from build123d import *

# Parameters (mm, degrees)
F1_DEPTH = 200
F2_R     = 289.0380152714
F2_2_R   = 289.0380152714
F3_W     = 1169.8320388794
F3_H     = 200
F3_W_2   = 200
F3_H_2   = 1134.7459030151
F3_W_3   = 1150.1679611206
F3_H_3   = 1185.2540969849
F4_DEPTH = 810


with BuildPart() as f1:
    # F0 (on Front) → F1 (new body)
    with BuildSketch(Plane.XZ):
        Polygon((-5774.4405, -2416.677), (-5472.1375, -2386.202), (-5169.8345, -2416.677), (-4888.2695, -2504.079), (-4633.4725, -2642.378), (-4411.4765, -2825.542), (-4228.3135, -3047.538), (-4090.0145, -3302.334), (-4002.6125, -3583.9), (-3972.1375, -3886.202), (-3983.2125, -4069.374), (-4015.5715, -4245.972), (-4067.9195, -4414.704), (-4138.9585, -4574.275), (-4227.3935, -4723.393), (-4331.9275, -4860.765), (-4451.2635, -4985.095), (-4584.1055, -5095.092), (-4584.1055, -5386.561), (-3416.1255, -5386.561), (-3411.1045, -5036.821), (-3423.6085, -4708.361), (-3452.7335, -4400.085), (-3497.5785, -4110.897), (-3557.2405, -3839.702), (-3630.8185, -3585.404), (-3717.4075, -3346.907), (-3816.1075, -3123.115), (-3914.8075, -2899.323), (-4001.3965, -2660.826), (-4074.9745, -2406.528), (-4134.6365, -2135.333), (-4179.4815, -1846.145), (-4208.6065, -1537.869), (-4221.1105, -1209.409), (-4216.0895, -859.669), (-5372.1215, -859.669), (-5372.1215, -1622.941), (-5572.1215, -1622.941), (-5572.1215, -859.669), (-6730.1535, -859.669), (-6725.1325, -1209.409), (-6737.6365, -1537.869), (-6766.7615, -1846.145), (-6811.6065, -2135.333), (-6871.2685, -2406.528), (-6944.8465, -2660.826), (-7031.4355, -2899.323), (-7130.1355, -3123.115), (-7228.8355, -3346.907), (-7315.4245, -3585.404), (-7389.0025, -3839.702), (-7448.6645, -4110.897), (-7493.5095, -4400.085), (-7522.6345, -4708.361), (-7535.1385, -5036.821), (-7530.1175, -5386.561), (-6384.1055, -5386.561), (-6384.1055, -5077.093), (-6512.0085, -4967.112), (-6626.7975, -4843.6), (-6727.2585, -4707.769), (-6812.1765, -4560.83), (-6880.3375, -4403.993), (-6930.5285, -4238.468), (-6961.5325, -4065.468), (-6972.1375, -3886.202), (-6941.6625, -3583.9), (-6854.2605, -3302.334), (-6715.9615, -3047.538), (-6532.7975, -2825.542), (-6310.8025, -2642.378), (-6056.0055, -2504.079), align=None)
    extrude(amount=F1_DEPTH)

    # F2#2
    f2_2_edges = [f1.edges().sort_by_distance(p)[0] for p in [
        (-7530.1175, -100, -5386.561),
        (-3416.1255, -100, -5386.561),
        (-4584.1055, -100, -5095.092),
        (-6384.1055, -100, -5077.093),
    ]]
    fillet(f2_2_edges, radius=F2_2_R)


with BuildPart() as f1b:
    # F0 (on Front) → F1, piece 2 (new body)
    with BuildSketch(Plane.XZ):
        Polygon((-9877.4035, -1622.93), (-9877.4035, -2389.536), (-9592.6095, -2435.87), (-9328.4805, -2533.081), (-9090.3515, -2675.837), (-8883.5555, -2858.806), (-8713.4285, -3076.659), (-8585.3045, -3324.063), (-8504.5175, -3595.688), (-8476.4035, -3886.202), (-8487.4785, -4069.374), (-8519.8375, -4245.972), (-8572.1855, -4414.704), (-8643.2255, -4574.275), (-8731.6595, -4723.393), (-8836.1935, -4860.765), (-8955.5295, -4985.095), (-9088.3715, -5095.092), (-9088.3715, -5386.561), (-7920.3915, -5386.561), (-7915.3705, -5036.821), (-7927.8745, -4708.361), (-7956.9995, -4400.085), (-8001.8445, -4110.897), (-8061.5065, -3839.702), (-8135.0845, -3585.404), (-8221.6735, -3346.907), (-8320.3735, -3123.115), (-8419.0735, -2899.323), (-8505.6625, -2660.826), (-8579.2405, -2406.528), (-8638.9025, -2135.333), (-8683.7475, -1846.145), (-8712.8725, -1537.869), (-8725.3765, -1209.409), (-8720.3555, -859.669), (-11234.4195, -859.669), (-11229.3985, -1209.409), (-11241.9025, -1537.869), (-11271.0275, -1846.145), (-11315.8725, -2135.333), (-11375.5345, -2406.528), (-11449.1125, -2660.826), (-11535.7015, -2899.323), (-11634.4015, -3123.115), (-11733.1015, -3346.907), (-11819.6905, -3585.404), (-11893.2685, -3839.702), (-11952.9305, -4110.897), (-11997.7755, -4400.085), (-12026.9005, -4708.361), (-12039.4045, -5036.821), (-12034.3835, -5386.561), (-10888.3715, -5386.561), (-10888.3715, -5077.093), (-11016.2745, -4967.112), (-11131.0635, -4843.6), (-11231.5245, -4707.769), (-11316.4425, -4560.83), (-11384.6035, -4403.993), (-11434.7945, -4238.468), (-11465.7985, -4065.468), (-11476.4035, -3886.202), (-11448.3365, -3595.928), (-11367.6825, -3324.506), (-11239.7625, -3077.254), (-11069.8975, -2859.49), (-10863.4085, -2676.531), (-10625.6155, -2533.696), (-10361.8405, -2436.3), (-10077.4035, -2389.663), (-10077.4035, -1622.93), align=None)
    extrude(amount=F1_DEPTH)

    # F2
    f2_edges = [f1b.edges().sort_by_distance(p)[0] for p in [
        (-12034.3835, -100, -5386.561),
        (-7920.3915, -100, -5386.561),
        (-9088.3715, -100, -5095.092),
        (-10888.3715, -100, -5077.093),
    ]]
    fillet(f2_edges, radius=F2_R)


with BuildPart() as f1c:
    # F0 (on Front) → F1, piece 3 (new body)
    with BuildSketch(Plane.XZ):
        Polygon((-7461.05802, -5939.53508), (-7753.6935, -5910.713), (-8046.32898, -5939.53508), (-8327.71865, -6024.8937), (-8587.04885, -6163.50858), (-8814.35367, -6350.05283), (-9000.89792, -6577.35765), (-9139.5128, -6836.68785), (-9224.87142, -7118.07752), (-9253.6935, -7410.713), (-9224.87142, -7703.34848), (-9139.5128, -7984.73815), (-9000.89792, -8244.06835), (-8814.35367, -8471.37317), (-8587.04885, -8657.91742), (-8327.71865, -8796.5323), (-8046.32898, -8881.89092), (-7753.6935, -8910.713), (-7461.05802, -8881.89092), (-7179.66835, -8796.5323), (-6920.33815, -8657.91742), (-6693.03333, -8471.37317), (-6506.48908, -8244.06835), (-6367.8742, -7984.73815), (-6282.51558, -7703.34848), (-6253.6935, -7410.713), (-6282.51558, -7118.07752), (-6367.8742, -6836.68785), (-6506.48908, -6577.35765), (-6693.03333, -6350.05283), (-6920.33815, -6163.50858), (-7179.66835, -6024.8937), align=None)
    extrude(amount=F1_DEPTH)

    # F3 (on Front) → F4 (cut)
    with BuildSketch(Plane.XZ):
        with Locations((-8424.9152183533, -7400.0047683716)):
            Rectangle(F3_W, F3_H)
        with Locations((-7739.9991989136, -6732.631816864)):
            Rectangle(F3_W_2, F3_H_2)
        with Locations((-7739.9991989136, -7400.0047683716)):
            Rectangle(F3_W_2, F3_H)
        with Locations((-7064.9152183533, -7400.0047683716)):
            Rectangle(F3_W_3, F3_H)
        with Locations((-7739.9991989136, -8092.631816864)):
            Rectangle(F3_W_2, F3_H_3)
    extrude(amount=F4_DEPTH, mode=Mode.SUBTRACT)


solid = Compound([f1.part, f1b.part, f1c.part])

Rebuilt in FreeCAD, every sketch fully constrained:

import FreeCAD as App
import Part
import Sketcher
from FreeCAD import Vector
Q = App.Units.Quantity


def edges_at(feature, points):
    """Names of the edges that pass closest to the given points."""
    edges = feature.Shape.Edges
    near = lambda p: min(range(len(edges)), key=lambda i: edges[i].distToShape(Part.Vertex(*p))[0])
    return sorted({f"Edge{near(p) + 1}" for p in points})


def add_polygon(sketch, points):
    """Adds a closed chain of lines whose ends are joined by coincident constraints."""
    first, n = sketch.GeometryCount, len(points)
    for a, b in zip(points, points[1:] + points[:1]):
        sketch.addGeometry(Part.LineSegment(App.Vector(*a, 0), App.Vector(*b, 0)), False)
    for i in range(n):
        sketch.addConstraint(Sketcher.Constraint("Coincident", first + i, 2, first + (i + 1) % n, 1))

doc = App.newDocument("Part")
body = doc.addObject("PartDesign::Body", "Body")

# Sketch on XZ plane
sketch1 = body.newObject("Sketcher::SketchObject", "Sketch")
sketch1.AttachmentSupport = (doc.getObject("XZ_Plane"), [""])
sketch1.MapMode = "FlatFace"
add_polygon(sketch1, [(-5774.4405, -2416.677), (-5472.1375, -2386.202), (-5169.8345, -2416.677), (-4888.2695, -2504.079), (-4633.4725, -2642.378), (-4411.4765, -2825.542), (-4228.3135, -3047.538), (-4090.0145, -3302.334), (-4002.6125, -3583.9), (-3972.1375, -3886.202), (-3983.2125, -4069.374), (-4015.5715, -4245.972), (-4067.9195, -4414.704), (-4138.9585, -4574.275), (-4227.3935, -4723.393), (-4331.9275, -4860.765), (-4451.2635, -4985.095), (-4584.1055, -5095.092), (-4584.1055, -5386.561), (-3416.1255, -5386.561), (-3411.1045, -5036.821), (-3423.6085, -4708.361), (-3452.7335, -4400.085), (-3497.5785, -4110.897), (-3557.2405, -3839.702), (-3630.8185, -3585.404), (-3717.4075, -3346.907), (-3914.8075, -2899.323), (-4001.3965, -2660.826), (-4074.9745, -2406.528), (-4134.6365, -2135.333), (-4179.4815, -1846.145), (-4208.6065, -1537.869), (-4221.1105, -1209.409), (-4216.0895, -859.669), (-5372.1215, -859.669), (-5372.1215, -1622.941), (-5572.1215, -1622.941), (-5572.1215, -859.669), (-6730.1535, -859.669), (-6725.1325, -1209.409), (-6737.6365, -1537.869), (-6766.7615, -1846.145), (-6811.6065, -2135.333), (-6871.2685, -2406.528), (-6944.8465, -2660.826), (-7031.4355, -2899.323), (-7228.8355, -3346.907), (-7315.4245, -3585.404), (-7389.0025, -3839.702), (-7448.6645, -4110.897), (-7493.5095, -4400.085), (-7522.6345, -4708.361), (-7535.1385, -5036.821), (-7530.1175, -5386.561), (-6384.1055, -5386.561), (-6384.1055, -5077.093), (-6512.0085, -4967.112), (-6626.7975, -4843.6), (-6727.2585, -4707.769), (-6812.1765, -4560.83), (-6880.3375, -4403.993), (-6930.5285, -4238.468), (-6961.5325, -4065.468), (-6972.1375, -3886.202), (-6941.6625, -3583.9), (-6854.2605, -3302.334), (-6715.9615, -3047.538), (-6532.7975, -2825.542), (-6310.8025, -2642.378), (-6056.0055, -2504.079)])  # lines 0-70
sketch1.addConstraint([
    Sketcher.Constraint("Vertical", 17),
    Sketcher.Constraint("Horizontal", 18),
    Sketcher.Constraint("Horizontal", 34),
    Sketcher.Constraint("Vertical", 35),
    Sketcher.Constraint("Horizontal", 36),
    Sketcher.Constraint("Vertical", 37),
    Sketcher.Constraint("Horizontal", 38),
    Sketcher.Constraint("Horizontal", 54),
    Sketcher.Constraint("Vertical", 55),
    Sketcher.Constraint("DistanceX", 36, 2, 36, 1, Q("200 mm")),
    Sketcher.Constraint("DistanceX", 18, 1, 18, 2, Q("1167.98 mm")),
    Sketcher.Constraint("DistanceY", 7, 2, -1, 1, Q("3583.9 mm")),
    Sketcher.Constraint("DistanceY", 57, 2, -1, 1, Q("4843.6 mm")),
    Sketcher.Constraint("DistanceY", 64, 2, -1, 1, Q("3583.9 mm")),
    Sketcher.Constraint("DistanceX", 34, 2, 34, 1, Q("1156.032 mm")),
    Sketcher.Constraint("DistanceX", 38, 2, 38, 1, Q("1158.032 mm")),
    Sketcher.Constraint("DistanceX", 54, 1, 54, 2, Q("1146.012 mm")),
    Sketcher.Constraint("DistanceY", 17, 2, 17, 1, Q("291.469 mm")),
    Sketcher.Constraint("DistanceY", 35, 2, 35, 1, Q("763.272 mm")),
    Sketcher.Constraint("DistanceY", 37, 1, 37, 2, Q("763.272 mm")),
    Sketcher.Constraint("DistanceY", 55, 1, 55, 2, Q("309.468 mm")),
    Sketcher.Constraint("DistanceY", 59, 2, -1, 1, Q("4560.83 mm")),
    Sketcher.Constraint("DistanceY", 0, 2, -1, 1, Q("2386.202 mm")),
    Sketcher.Constraint("DistanceY", 1, 2, -1, 1, Q("2416.677 mm")),
    Sketcher.Constraint("DistanceY", 2, 2, -1, 1, Q("2504.079 mm")),
    Sketcher.Constraint("DistanceY", 3, 2, -1, 1, Q("2642.378 mm")),
    Sketcher.Constraint("DistanceY", 4, 2, -1, 1, Q("2825.542 mm")),
    Sketcher.Constraint("DistanceY", 5, 2, -1, 1, Q("3047.538 mm")),
    Sketcher.Constraint("DistanceY", 6, 2, -1, 1, Q("3302.334 mm")),
    Sketcher.Constraint("DistanceY", 8, 2, -1, 1, Q("3886.202 mm")),
    Sketcher.Constraint("DistanceY", 9, 2, -1, 1, Q("4069.374 mm")),
    Sketcher.Constraint("DistanceY", 10, 2, -1, 1, Q("4245.972 mm")),
    Sketcher.Constraint("DistanceY", 11, 2, -1, 1, Q("4414.704 mm")),
    Sketcher.Constraint("DistanceY", 12, 2, -1, 1, Q("4574.275 mm")),
    Sketcher.Constraint("DistanceY", 13, 2, -1, 1, Q("4723.393 mm")),
    Sketcher.Constraint("DistanceY", 14, 2, -1, 1, Q("4860.765 mm")),
    Sketcher.Constraint("DistanceY", 15, 2, -1, 1, Q("4985.095 mm")),
    Sketcher.Constraint("DistanceY", 16, 2, -1, 1, Q("5095.092 mm")),
    Sketcher.Constraint("DistanceY", 19, 2, -1, 1, Q("5036.821 mm")),
    Sketcher.Constraint("DistanceY", 20, 2, -1, 1, Q("4708.361 mm")),
    Sketcher.Constraint("DistanceY", 21, 2, -1, 1, Q("4400.085 mm")),
    Sketcher.Constraint("DistanceY", 22, 2, -1, 1, Q("4110.897 mm")),
    Sketcher.Constraint("DistanceY", 23, 2, -1, 1, Q("3839.702 mm")),
    Sketcher.Constraint("DistanceY", 24, 2, -1, 1, Q("3585.404 mm")),
    Sketcher.Constraint("DistanceY", 25, 2, -1, 1, Q("3346.907 mm")),
    Sketcher.Constraint("DistanceY", 26, 2, -1, 1, Q("2899.323 mm")),
    Sketcher.Constraint("DistanceY", 27, 2, -1, 1, Q("2660.826 mm")),
    Sketcher.Constraint("DistanceY", 28, 2, -1, 1, Q("2406.528 mm")),
    Sketcher.Constraint("DistanceY", 29, 2, -1, 1, Q("2135.333 mm")),
    Sketcher.Constraint("DistanceY", 30, 2, -1, 1, Q("1846.145 mm")),
    Sketcher.Constraint("DistanceY", 31, 2, -1, 1, Q("1537.869 mm")),
    Sketcher.Constraint("DistanceY", 32, 2, -1, 1, Q("1209.409 mm")),
    Sketcher.Constraint("DistanceY", 33, 2, -1, 1, Q("859.669 mm")),
    Sketcher.Constraint("DistanceY", 39, 2, -1, 1, Q("1209.409 mm")),
    Sketcher.Constraint("DistanceY", 40, 2, -1, 1, Q("1537.869 mm")),
    Sketcher.Constraint("DistanceY", 41, 2, -1, 1, Q("1846.145 mm")),
    Sketcher.Constraint("DistanceY", 42, 2, -1, 1, Q("2135.333 mm")),
    Sketcher.Constraint("DistanceY", 43, 2, -1, 1, Q("2406.528 mm")),
    Sketcher.Constraint("DistanceY", 44, 2, -1, 1, Q("2660.826 mm")),
    Sketcher.Constraint("DistanceY", 45, 2, -1, 1, Q("2899.323 mm")),
    Sketcher.Constraint("DistanceY", 46, 2, -1, 1, Q("3346.907 mm")),
    Sketcher.Constraint("DistanceY", 47, 2, -1, 1, Q("3585.404 mm")),
    Sketcher.Constraint("DistanceY", 48, 2, -1, 1, Q("3839.702 mm")),
    Sketcher.Constraint("DistanceY", 49, 2, -1, 1, Q("4110.897 mm")),
    Sketcher.Constraint("DistanceY", 50, 2, -1, 1, Q("4400.085 mm")),
    Sketcher.Constraint("DistanceY", 51, 2, -1, 1, Q("4708.361 mm")),
    Sketcher.Constraint("DistanceY", 52, 2, -1, 1, Q("5036.821 mm")),
    Sketcher.Constraint("DistanceY", 53, 2, -1, 1, Q("5386.561 mm")),
    Sketcher.Constraint("DistanceY", 56, 2, -1, 1, Q("4967.112 mm")),
    Sketcher.Constraint("DistanceY", 58, 2, -1, 1, Q("4707.769 mm")),
    Sketcher.Constraint("DistanceY", 60, 2, -1, 1, Q("4403.993 mm")),
    Sketcher.Constraint("DistanceY", 61, 2, -1, 1, Q("4238.468 mm")),
    Sketcher.Constraint("DistanceY", 62, 2, -1, 1, Q("4065.468 mm")),
    Sketcher.Constraint("DistanceY", 63, 2, -1, 1, Q("3886.202 mm")),
    Sketcher.Constraint("DistanceY", 65, 2, -1, 1, Q("3302.334 mm")),
    Sketcher.Constraint("DistanceY", 66, 2, -1, 1, Q("3047.538 mm")),
    Sketcher.Constraint("DistanceY", 67, 2, -1, 1, Q("2825.542 mm")),
    Sketcher.Constraint("DistanceY", 68, 2, -1, 1, Q("2642.378 mm")),
    Sketcher.Constraint("DistanceY", 69, 2, -1, 1, Q("2504.079 mm")),
    Sketcher.Constraint("DistanceY", 70, 2, -1, 1, Q("2416.677 mm")),
    Sketcher.Constraint("Distance", 0, Q("303.835201 mm")),
    Sketcher.Constraint("Distance", 1, Q("303.835201 mm")),
    Sketcher.Constraint("Distance", 14, Q("172.622199 mm")),
    Sketcher.Constraint("DistanceX", 0, 2, -1, 1, Q("5472.1375 mm")),
    Sketcher.Constraint("DistanceX", 2, 2, -1, 1, Q("4888.2695 mm")),
    Sketcher.Constraint("DistanceX", 3, 2, -1, 1, Q("4633.4725 mm")),
    Sketcher.Constraint("DistanceX", 4, 2, -1, 1, Q("4411.4765 mm")),
    Sketcher.Constraint("DistanceX", 5, 2, -1, 1, Q("4228.3135 mm")),
    Sketcher.Constraint("DistanceX", 6, 2, -1, 1, Q("4090.0145 mm")),
    Sketcher.Constraint("DistanceX", 7, 2, -1, 1, Q("4002.6125 mm")),
    Sketcher.Constraint("DistanceX", 8, 2, -1, 1, Q("3972.1375 mm")),
    Sketcher.Constraint("DistanceX", 9, 2, -1, 1, Q("3983.2125 mm")),
    Sketcher.Constraint("DistanceX", 10, 2, -1, 1, Q("4015.5715 mm")),
    Sketcher.Constraint("DistanceX", 11, 2, -1, 1, Q("4067.9195 mm")),
    Sketcher.Constraint("DistanceX", 12, 2, -1, 1, Q("4138.9585 mm")),
    Sketcher.Constraint("DistanceX", 13, 2, -1, 1, Q("4227.3935 mm")),
    Sketcher.Constraint("DistanceX", 15, 2, -1, 1, Q("4451.2635 mm")),
    Sketcher.Constraint("DistanceX", 16, 2, -1, 1, Q("4584.1055 mm")),
    Sketcher.Constraint("DistanceX", 19, 2, -1, 1, Q("3411.1045 mm")),
    Sketcher.Constraint("DistanceX", 20, 2, -1, 1, Q("3423.6085 mm")),
    Sketcher.Constraint("DistanceX", 21, 2, -1, 1, Q("3452.7335 mm")),
    Sketcher.Constraint("DistanceX", 22, 2, -1, 1, Q("3497.5785 mm")),
    Sketcher.Constraint("DistanceX", 23, 2, -1, 1, Q("3557.2405 mm")),
    Sketcher.Constraint("DistanceX", 24, 2, -1, 1, Q("3630.8185 mm")),
    Sketcher.Constraint("DistanceX", 25, 2, -1, 1, Q("3717.4075 mm")),
    Sketcher.Constraint("DistanceX", 26, 2, -1, 1, Q("3914.8075 mm")),
    Sketcher.Constraint("DistanceX", 27, 2, -1, 1, Q("4001.3965 mm")),
    Sketcher.Constraint("DistanceX", 28, 2, -1, 1, Q("4074.9745 mm")),
    Sketcher.Constraint("DistanceX", 29, 2, -1, 1, Q("4134.6365 mm")),
    Sketcher.Constraint("DistanceX", 30, 2, -1, 1, Q("4179.4815 mm")),
    Sketcher.Constraint("DistanceX", 31, 2, -1, 1, Q("4208.6065 mm")),
    Sketcher.Constraint("DistanceX", 32, 2, -1, 1, Q("4221.1105 mm")),
    Sketcher.Constraint("DistanceX", 33, 2, -1, 1, Q("4216.0895 mm")),
    Sketcher.Constraint("DistanceX", 39, 2, -1, 1, Q("6725.1325 mm")),
    Sketcher.Constraint("DistanceX", 40, 2, -1, 1, Q("6737.6365 mm")),
    Sketcher.Constraint("DistanceX", 41, 2, -1, 1, Q("6766.7615 mm")),
    Sketcher.Constraint("DistanceX", 42, 2, -1, 1, Q("6811.6065 mm")),
    Sketcher.Constraint("DistanceX", 43, 2, -1, 1, Q("6871.2685 mm")),
    Sketcher.Constraint("DistanceX", 44, 2, -1, 1, Q("6944.8465 mm")),
    Sketcher.Constraint("DistanceX", 45, 2, -1, 1, Q("7031.4355 mm")),
    Sketcher.Constraint("DistanceX", 46, 2, -1, 1, Q("7228.8355 mm")),
    Sketcher.Constraint("DistanceX", 47, 2, -1, 1, Q("7315.4245 mm")),
    Sketcher.Constraint("DistanceX", 48, 2, -1, 1, Q("7389.0025 mm")),
    Sketcher.Constraint("DistanceX", 49, 2, -1, 1, Q("7448.6645 mm")),
    Sketcher.Constraint("DistanceX", 50, 2, -1, 1, Q("7493.5095 mm")),
    Sketcher.Constraint("DistanceX", 51, 2, -1, 1, Q("7522.6345 mm")),
    Sketcher.Constraint("DistanceX", 52, 2, -1, 1, Q("7535.1385 mm")),
    Sketcher.Constraint("DistanceX", 53, 2, -1, 1, Q("7530.1175 mm")),
    Sketcher.Constraint("DistanceX", 56, 2, -1, 1, Q("6512.0085 mm")),
    Sketcher.Constraint("DistanceX", 57, 2, -1, 1, Q("6626.7975 mm")),
    Sketcher.Constraint("DistanceX", 58, 2, -1, 1, Q("6727.2585 mm")),
    Sketcher.Constraint("DistanceX", 59, 2, -1, 1, Q("6812.1765 mm")),
    Sketcher.Constraint("DistanceX", 60, 2, -1, 1, Q("6880.3375 mm")),
    Sketcher.Constraint("DistanceX", 61, 2, -1, 1, Q("6930.5285 mm")),
    Sketcher.Constraint("DistanceX", 62, 2, -1, 1, Q("6961.5325 mm")),
    Sketcher.Constraint("DistanceX", 63, 2, -1, 1, Q("6972.1375 mm")),
    Sketcher.Constraint("DistanceX", 64, 2, -1, 1, Q("6941.6625 mm")),
    Sketcher.Constraint("DistanceX", 65, 2, -1, 1, Q("6854.2605 mm")),
    Sketcher.Constraint("DistanceX", 66, 2, -1, 1, Q("6715.9615 mm")),
    Sketcher.Constraint("DistanceX", 67, 2, -1, 1, Q("6532.7975 mm")),
    Sketcher.Constraint("DistanceX", 68, 2, -1, 1, Q("6310.8025 mm")),
    Sketcher.Constraint("DistanceX", 69, 2, -1, 1, Q("6056.0055 mm")),
])
pad1 = body.newObject("PartDesign::Pad", "Pad")
pad1.Profile = sketch1
pad1.Length = 200
doc.recompute()

fillet = body.newObject("PartDesign::Fillet", "Fillet")
fillet.Base = (pad1, edges_at(pad1, [
    (-7530.118, -100, -5386.561),
    (-3416.126, -100, -5386.561),
    (-4584.105, -100, -5095.092),
    (-6384.105, -100, -5077.093),
]))
fillet.Radius = 289.038015
body2 = doc.addObject("PartDesign::Body", "Body001")

# Sketch on XZ plane
sketch2 = body2.newObject("Sketcher::SketchObject", "Sketch001")
sketch2.AttachmentSupport = (doc.getObject("XZ_Plane001"), [""])
sketch2.MapMode = "FlatFace"
add_polygon(sketch2, [(-9877, -1623), (-9877, -2390), (-9593, -2436), (-9328, -2533), (-9090, -2676), (-8884, -2859), (-8713, -3077), (-8585, -3324), (-8505, -3596), (-8476, -3886), (-8487, -4069), (-8520, -4246), (-8572, -4415), (-8643, -4574), (-8732, -4723), (-8836, -4861), (-8956, -4985), (-9088, -5095), (-9088, -5387), (-7920, -5387), (-7915, -5037), (-7928, -4708), (-7957, -4400), (-8002, -4111), (-8062, -3840), (-8135, -3585), (-8222, -3347), (-8419, -2899), (-8506, -2661), (-8579, -2407), (-8639, -2135), (-8684, -1846), (-8713, -1538), (-8725, -1209), (-8720, -860), (-11234, -860), (-11229, -1209), (-11242, -1538), (-11271, -1846), (-11316, -2135), (-11376, -2407), (-11449, -2661), (-11536, -2899), (-11733, -3347), (-11820, -3585), (-11893, -3840), (-11953, -4111), (-11998, -4400), (-12027, -4708), (-12039, -5037), (-12034, -5387), (-10888, -5387), (-10888, -5077), (-11016, -4967), (-11131, -4844), (-11232, -4708), (-11316, -4561), (-11385, -4404), (-11435, -4238), (-11466, -4065), (-11476, -3886), (-11448, -3596), (-11368, -3325), (-11240, -3077), (-11070, -2859), (-10863, -2677), (-10626, -2534), (-10362, -2436), (-10077, -2390), (-10077, -1623)])  # lines 0-69
sketch2.addConstraint([
    Sketcher.Constraint("Vertical", 0),
    Sketcher.Constraint("Vertical", 17),
    Sketcher.Constraint("Horizontal", 18),
    Sketcher.Constraint("Horizontal", 34),
    Sketcher.Constraint("Horizontal", 50),
    Sketcher.Constraint("Vertical", 51),
    Sketcher.Constraint("Vertical", 68),
    Sketcher.Constraint("Horizontal", 69),
    Sketcher.Constraint("Parallel", 25, 27),
    Sketcher.Constraint("Parallel", 24, 28),
    Sketcher.Constraint("Parallel", 23, 29),
    Sketcher.Constraint("Parallel", 22, 30),
    Sketcher.Constraint("Parallel", 21, 31),
    Sketcher.Constraint("Parallel", 20, 32),
    Sketcher.Constraint("Parallel", 19, 33),
    Sketcher.Constraint("Parallel", 41, 43),
    Sketcher.Constraint("Parallel", 40, 44),
    Sketcher.Constraint("Parallel", 39, 45),
    Sketcher.Constraint("Parallel", 38, 46),
    Sketcher.Constraint("Parallel", 37, 47),
    Sketcher.Constraint("Parallel", 36, 48),
    Sketcher.Constraint("Parallel", 35, 49),
    Sketcher.Constraint("Horizontal", 32, 2, 35, 2),
    Sketcher.Constraint("Horizontal", 31, 2, 36, 2),
    Sketcher.Constraint("Horizontal", 30, 2, 37, 2),
    Sketcher.Constraint("Horizontal", 29, 2, 38, 2),
    Sketcher.Constraint("Horizontal", 28, 2, 39, 2),
    Sketcher.Constraint("Horizontal", 27, 2, 40, 2),
    Sketcher.Constraint("Horizontal", 26, 2, 41, 2),
    Sketcher.Constraint("Horizontal", 25, 2, 42, 2),
    Sketcher.Constraint("Horizontal", 24, 2, 43, 2),
    Sketcher.Constraint("Horizontal", 23, 2, 44, 2),
    Sketcher.Constraint("Horizontal", 22, 2, 45, 2),
    Sketcher.Constraint("Horizontal", 21, 2, 46, 2),
    Sketcher.Constraint("Horizontal", 20, 2, 47, 2),
    Sketcher.Constraint("Horizontal", 19, 2, 48, 2),
    Sketcher.Constraint("Horizontal", 18, 2, 49, 2),
    Sketcher.Constraint("Horizontal", 8, 2, 59, 2),
    Sketcher.Constraint("Equal", 25, 27),
    Sketcher.Constraint("Equal", 24, 28),
    Sketcher.Constraint("Equal", 23, 29),
    Sketcher.Constraint("Equal", 22, 30),
    Sketcher.Constraint("Equal", 21, 31),
    Sketcher.Constraint("Equal", 20, 32),
    Sketcher.Constraint("Equal", 19, 33),
    Sketcher.Constraint("Equal", 33, 35),
    Sketcher.Constraint("Equal", 32, 36),
    Sketcher.Constraint("Equal", 31, 37),
    Sketcher.Constraint("Equal", 30, 38),
    Sketcher.Constraint("Equal", 29, 39),
    Sketcher.Constraint("Equal", 28, 40),
    Sketcher.Constraint("Equal", 27, 41),
    Sketcher.Constraint("Equal", 26, 42),
    Sketcher.Constraint("DistanceX", 69, 1, 69, 2, Q("200 mm")),
    Sketcher.Constraint("DistanceX", 18, 1, 18, 2, Q("1167.98 mm")),
    Sketcher.Constraint("DistanceY", 53, 2, -1, 1, Q("4843.6 mm")),
    Sketcher.Constraint("DistanceY", 66, 2, -1, 1, Q("2436.3 mm")),
    Sketcher.Constraint("DistanceX", 34, 2, 34, 1, Q("2514.064 mm")),
    Sketcher.Constraint("DistanceX", 50, 1, 50, 2, Q("1146.012 mm")),
    Sketcher.Constraint("DistanceY", 0, 2, 0, 1, Q("766.606 mm")),
    Sketcher.Constraint("DistanceY", 17, 2, 17, 1, Q("291.469 mm")),
    Sketcher.Constraint("DistanceY", 51, 1, 51, 2, Q("309.468 mm")),
    Sketcher.Constraint("DistanceY", 68, 1, 68, 2, Q("766.733 mm")),
    Sketcher.Constraint("DistanceY", 1, 2, -1, 1, Q("2435.87 mm")),
    Sketcher.Constraint("DistanceY", 55, 2, -1, 1, Q("4560.83 mm")),
    Sketcher.Constraint("DistanceY", 63, 2, -1, 1, Q("2859.49 mm")),
    Sketcher.Constraint("DistanceY", 68, 2, -1, 1, Q("1622.93 mm")),
    Sketcher.Constraint("DistanceY", 2, 2, -1, 1, Q("2533.081 mm")),
    Sketcher.Constraint("DistanceY", 3, 2, -1, 1, Q("2675.837 mm")),
    Sketcher.Constraint("DistanceY", 4, 2, -1, 1, Q("2858.806 mm")),
    Sketcher.Constraint("DistanceY", 5, 2, -1, 1, Q("3076.659 mm")),
    Sketcher.Constraint("DistanceY", 6, 2, -1, 1, Q("3324.063 mm")),
    Sketcher.Constraint("DistanceY", 7, 2, -1, 1, Q("3595.688 mm")),
    Sketcher.Constraint("DistanceY", 8, 2, -1, 1, Q("3886.202 mm")),
    Sketcher.Constraint("DistanceY", 9, 2, -1, 1, Q("4069.374 mm")),
    Sketcher.Constraint("DistanceY", 10, 2, -1, 1, Q("4245.972 mm")),
    Sketcher.Constraint("DistanceY", 11, 2, -1, 1, Q("4414.704 mm")),
    Sketcher.Constraint("DistanceY", 12, 2, -1, 1, Q("4574.275 mm")),
    Sketcher.Constraint("DistanceY", 13, 2, -1, 1, Q("4723.393 mm")),
    Sketcher.Constraint("DistanceY", 14, 2, -1, 1, Q("4860.765 mm")),
    Sketcher.Constraint("DistanceY", 15, 2, -1, 1, Q("4985.095 mm")),
    Sketcher.Constraint("DistanceY", 16, 2, -1, 1, Q("5095.092 mm")),
    Sketcher.Constraint("DistanceY", 19, 2, -1, 1, Q("5036.821 mm")),
    Sketcher.Constraint("DistanceY", 20, 2, -1, 1, Q("4708.361 mm")),
    Sketcher.Constraint("DistanceY", 21, 2, -1, 1, Q("4400.085 mm")),
    Sketcher.Constraint("DistanceY", 22, 2, -1, 1, Q("4110.897 mm")),
    Sketcher.Constraint("DistanceY", 23, 2, -1, 1, Q("3839.702 mm")),
    Sketcher.Constraint("DistanceY", 24, 2, -1, 1, Q("3585.404 mm")),
    Sketcher.Constraint("DistanceY", 25, 2, -1, 1, Q("3346.907 mm")),
    Sketcher.Constraint("DistanceY", 26, 2, -1, 1, Q("2899.323 mm")),
    Sketcher.Constraint("DistanceY", 52, 2, -1, 1, Q("4967.112 mm")),
    Sketcher.Constraint("DistanceY", 54, 2, -1, 1, Q("4707.769 mm")),
    Sketcher.Constraint("DistanceY", 56, 2, -1, 1, Q("4403.993 mm")),
    Sketcher.Constraint("DistanceY", 57, 2, -1, 1, Q("4238.468 mm")),
    Sketcher.Constraint("DistanceY", 58, 2, -1, 1, Q("4065.468 mm")),
    Sketcher.Constraint("DistanceY", 60, 2, -1, 1, Q("3595.928 mm")),
    Sketcher.Constraint("DistanceY", 61, 2, -1, 1, Q("3324.506 mm")),
    Sketcher.Constraint("DistanceY", 62, 2, -1, 1, Q("3077.254 mm")),
    Sketcher.Constraint("DistanceY", 64, 2, -1, 1, Q("2676.531 mm")),
    Sketcher.Constraint("DistanceY", 65, 2, -1, 1, Q("2533.696 mm")),
    Sketcher.Constraint("Distance", 14, Q("172.622199 mm")),
    Sketcher.Constraint("DistanceX", 0, 2, -1, 1, Q("9877.4035 mm")),
    Sketcher.Constraint("DistanceX", 1, 2, -1, 1, Q("9592.6095 mm")),
    Sketcher.Constraint("DistanceX", 2, 2, -1, 1, Q("9328.4805 mm")),
    Sketcher.Constraint("DistanceX", 3, 2, -1, 1, Q("9090.3515 mm")),
    Sketcher.Constraint("DistanceX", 4, 2, -1, 1, Q("8883.5555 mm")),
    Sketcher.Constraint("DistanceX", 5, 2, -1, 1, Q("8713.4285 mm")),
    Sketcher.Constraint("DistanceX", 6, 2, -1, 1, Q("8585.3045 mm")),
    Sketcher.Constraint("DistanceX", 7, 2, -1, 1, Q("8504.5175 mm")),
    Sketcher.Constraint("DistanceX", 8, 2, -1, 1, Q("8476.4035 mm")),
    Sketcher.Constraint("DistanceX", 9, 2, -1, 1, Q("8487.4785 mm")),
    Sketcher.Constraint("DistanceX", 10, 2, -1, 1, Q("8519.8375 mm")),
    Sketcher.Constraint("DistanceX", 11, 2, -1, 1, Q("8572.1855 mm")),
    Sketcher.Constraint("DistanceX", 12, 2, -1, 1, Q("8643.2255 mm")),
    Sketcher.Constraint("DistanceX", 13, 2, -1, 1, Q("8731.6595 mm")),
    Sketcher.Constraint("DistanceX", 15, 2, -1, 1, Q("8955.5295 mm")),
    Sketcher.Constraint("DistanceX", 16, 2, -1, 1, Q("9088.3715 mm")),
    Sketcher.Constraint("DistanceX", 19, 2, -1, 1, Q("7915.3705 mm")),
    Sketcher.Constraint("DistanceX", 20, 2, -1, 1, Q("7927.8745 mm")),
    Sketcher.Constraint("DistanceX", 21, 2, -1, 1, Q("7956.9995 mm")),
    Sketcher.Constraint("DistanceX", 22, 2, -1, 1, Q("8001.8445 mm")),
    Sketcher.Constraint("DistanceX", 23, 2, -1, 1, Q("8061.5065 mm")),
    Sketcher.Constraint("DistanceX", 24, 2, -1, 1, Q("8135.0845 mm")),
    Sketcher.Constraint("DistanceX", 25, 2, -1, 1, Q("8221.6735 mm")),
    Sketcher.Constraint("DistanceX", 26, 2, -1, 1, Q("8419.0735 mm")),
    Sketcher.Constraint("DistanceX", 52, 2, -1, 1, Q("11016.2745 mm")),
    Sketcher.Constraint("DistanceX", 53, 2, -1, 1, Q("11131.0635 mm")),
    Sketcher.Constraint("DistanceX", 54, 2, -1, 1, Q("11231.5245 mm")),
    Sketcher.Constraint("DistanceX", 55, 2, -1, 1, Q("11316.4425 mm")),
    Sketcher.Constraint("DistanceX", 56, 2, -1, 1, Q("11384.6035 mm")),
    Sketcher.Constraint("DistanceX", 57, 2, -1, 1, Q("11434.7945 mm")),
    Sketcher.Constraint("DistanceX", 58, 2, -1, 1, Q("11465.7985 mm")),
    Sketcher.Constraint("DistanceX", 59, 2, -1, 1, Q("11476.4035 mm")),
    Sketcher.Constraint("DistanceX", 60, 2, -1, 1, Q("11448.3365 mm")),
    Sketcher.Constraint("DistanceX", 61, 2, -1, 1, Q("11367.6825 mm")),
    Sketcher.Constraint("DistanceX", 62, 2, -1, 1, Q("11239.7625 mm")),
    Sketcher.Constraint("DistanceX", 63, 2, -1, 1, Q("11069.8975 mm")),
    Sketcher.Constraint("DistanceX", 64, 2, -1, 1, Q("10863.4085 mm")),
    Sketcher.Constraint("DistanceX", 65, 2, -1, 1, Q("10625.6155 mm")),
    Sketcher.Constraint("DistanceX", 66, 2, -1, 1, Q("10361.8405 mm")),
])
pad2 = body2.newObject("PartDesign::Pad", "Pad001")
pad2.Profile = sketch2
pad2.Length = 200
doc.recompute()

fillet2 = body2.newObject("PartDesign::Fillet", "Fillet001")
fillet2.Base = (pad2, edges_at(pad2, [
    (-12034.383, -100, -5386.561),
    (-7920.391, -100, -5386.561),
    (-9088.371, -100, -5095.092),
    (-10888.371, -100, -5077.093),
]))
fillet2.Radius = 289.038015
body3 = doc.addObject("PartDesign::Body", "Body002")

# Sketch on XZ plane
sketch3 = body3.newObject("Sketcher::SketchObject", "Sketch002")
sketch3.AttachmentSupport = (doc.getObject("XZ_Plane002"), [""])
sketch3.MapMode = "FlatFace"
add_polygon(sketch3, [(-7461.05802, -5939.53508), (-7753.6935, -5910.713), (-8046.32898, -5939.53508), (-8327.71865, -6024.8937), (-8587.04885, -6163.50858), (-8814.35367, -6350.05283), (-9000.89792, -6577.35765), (-9139.5128, -6836.68785), (-9224.87142, -7118.07752), (-9253.6935, -7410.713), (-9224.87142, -7703.34848), (-9139.5128, -7984.73815), (-9000.89792, -8244.06835), (-8814.35367, -8471.37317), (-8587.04885, -8657.91742), (-8327.71865, -8796.5323), (-8046.32898, -8881.89092), (-7753.6935, -8910.713), (-7461.05802, -8881.89092), (-7179.66835, -8796.5323), (-6920.33815, -8657.91742), (-6693.03333, -8471.37317), (-6506.48908, -8244.06835), (-6367.8742, -7984.73815), (-6282.51558, -7703.34848), (-6253.6935, -7410.713), (-6282.51558, -7118.07752), (-6367.8742, -6836.68785), (-6506.48908, -6577.35765), (-6693.03333, -6350.05283), (-6920.33815, -6163.50858), (-7179.66835, -6024.8937)])  # lines 0-31
sketch3.addConstraint([
    Sketcher.Constraint("Perpendicular", 0, 8),
    Sketcher.Constraint("Perpendicular", 1, 9),
    Sketcher.Constraint("Perpendicular", 2, 10),
    Sketcher.Constraint("Perpendicular", 3, 11),
    Sketcher.Constraint("Perpendicular", 4, 12),
    Sketcher.Constraint("Perpendicular", 5, 13),
    Sketcher.Constraint("Perpendicular", 6, 14),
    Sketcher.Constraint("Perpendicular", 7, 15),
    Sketcher.Constraint("Perpendicular", 8, 16),
    Sketcher.Constraint("Perpendicular", 9, 17),
    Sketcher.Constraint("Perpendicular", 10, 18),
    Sketcher.Constraint("Perpendicular", 11, 19),
    Sketcher.Constraint("Perpendicular", 12, 20),
    Sketcher.Constraint("Perpendicular", 13, 21),
    Sketcher.Constraint("Perpendicular", 14, 22),
    Sketcher.Constraint("Perpendicular", 15, 23),
    Sketcher.Constraint("Perpendicular", 16, 24),
    Sketcher.Constraint("Perpendicular", 17, 25),
    Sketcher.Constraint("Perpendicular", 18, 26),
    Sketcher.Constraint("Perpendicular", 19, 27),
    Sketcher.Constraint("Perpendicular", 20, 28),
    Sketcher.Constraint("Perpendicular", 21, 29),
    Sketcher.Constraint("Perpendicular", 22, 30),
    Sketcher.Constraint("Perpendicular", 23, 31),
    Sketcher.Constraint("Horizontal", 15, 2, 17, 2),
    Sketcher.Constraint("Horizontal", 14, 2, 18, 2),
    Sketcher.Constraint("Horizontal", 13, 2, 19, 2),
    Sketcher.Constraint("Horizontal", 12, 2, 20, 2),
    Sketcher.Constraint("Horizontal", 11, 2, 21, 2),
    Sketcher.Constraint("Horizontal", 10, 2, 22, 2),
    Sketcher.Constraint("Horizontal", 9, 2, 23, 2),
    Sketcher.Constraint("Horizontal", 8, 2, 24, 2),
    Sketcher.Constraint("Horizontal", 7, 2, 25, 2),
    Sketcher.Constraint("Horizontal", 6, 2, 26, 2),
    Sketcher.Constraint("Horizontal", 5, 2, 27, 2),
    Sketcher.Constraint("Horizontal", 4, 2, 28, 2),
    Sketcher.Constraint("Horizontal", 3, 2, 29, 2),
    Sketcher.Constraint("Horizontal", 2, 2, 30, 2),
    Sketcher.Constraint("Horizontal", 1, 2, 31, 2),
    Sketcher.Constraint("Vertical", 7, 2, 9, 2),
    Sketcher.Constraint("Vertical", 6, 2, 10, 2),
    Sketcher.Constraint("Vertical", 5, 2, 11, 2),
    Sketcher.Constraint("Vertical", 4, 2, 12, 2),
    Sketcher.Constraint("Vertical", 3, 2, 13, 2),
    Sketcher.Constraint("Vertical", 2, 2, 14, 2),
    Sketcher.Constraint("Vertical", 1, 2, 15, 2),
    Sketcher.Constraint("Vertical", 0, 2, 16, 2),
    Sketcher.Constraint("Vertical", 23, 2, 25, 2),
    Sketcher.Constraint("Vertical", 22, 2, 26, 2),
    Sketcher.Constraint("Vertical", 21, 2, 27, 2),
    Sketcher.Constraint("Equal", 1, 3),
    Sketcher.Constraint("Equal", 3, 4),
    Sketcher.Constraint("Equal", 4, 5),
    Sketcher.Constraint("Equal", 5, 6),
    Sketcher.Constraint("Equal", 2, 7),
    Sketcher.Constraint("Equal", 6, 8),
    Sketcher.Constraint("DistanceY", 0, 2, -1, 1, Q("5910.713 mm")),
    Sketcher.Constraint("DistanceY", 8, 2, -1, 1, Q("7410.713 mm")),
    Sketcher.Constraint("DistanceX", 0, 2, -1, 1, Q("7753.6935 mm")),
    Sketcher.Constraint("DistanceY", 2, 2, -1, 1, Q("6024.8937 mm")),
    Sketcher.Constraint("DistanceX", 3, 2, 2, 2, Q("259.3302 mm")),
    Sketcher.Constraint("DistanceY", 3, 2, 1, 2, Q("223.9735 mm")),
    Sketcher.Constraint("DistanceY", 10, 2, 6, 2, Q("1148.0503 mm")),
    Sketcher.Constraint("Distance", 0, Q("294.051418 mm")),
])
pad3 = body3.newObject("PartDesign::Pad", "Pad002")
pad3.Profile = sketch3
pad3.Length = 200

# Sketch on XZ plane
sketch4 = body3.newObject("Sketcher::SketchObject", "Sketch003")
sketch4.AttachmentSupport = (doc.getObject("XZ_Plane002"), [""])
sketch4.MapMode = "FlatFace"
add_polygon(sketch4, [(-9010, -7300), (-9010, -7500), (-7840, -7500), (-7840, -8685), (-7640, -8685), (-7640, -7500), (-6490, -7500), (-6490, -7300), (-7640, -7300), (-7640, -6165), (-7840, -6165), (-7840, -7300)])  # lines 0-11
sketch4.addConstraint([
    Sketcher.Constraint("Vertical", 0),
    Sketcher.Constraint("Horizontal", 1),
    Sketcher.Constraint("Vertical", 2),
    Sketcher.Constraint("Horizontal", 3),
    Sketcher.Constraint("Vertical", 4),
    Sketcher.Constraint("Horizontal", 5),
    Sketcher.Constraint("Vertical", 6),
    Sketcher.Constraint("Horizontal", 7),
    Sketcher.Constraint("Vertical", 8),
    Sketcher.Constraint("Horizontal", 9),
    Sketcher.Constraint("Vertical", 10),
    Sketcher.Constraint("Horizontal", 11),
    Sketcher.Constraint("Horizontal", 1, 2, 4, 2),
    Sketcher.Constraint("Horizontal", 7, 2, 10, 2),
    Sketcher.Constraint("Vertical", 4, 2, 7, 2),
    Sketcher.Constraint("Vertical", 2, 2, 9, 2),
    Sketcher.Constraint("Equal", 9, 0),
    Sketcher.Constraint("DistanceX", 3, 1, 3, 2, Q("200 mm")),
    Sketcher.Constraint("DistanceX", 0, 2, 5, 2, Q("2520 mm")),
    Sketcher.Constraint("DistanceX", 1, 1, 1, 2, Q("1169.832039 mm")),
    Sketcher.Constraint("DistanceX", 1, 2, -1, 1, Q("7839.999199 mm")),
    Sketcher.Constraint("DistanceY", 2, 2, 2, 1, Q("1185.254097 mm")),
    Sketcher.Constraint("DistanceY", 8, 1, 8, 2, Q("1134.745903 mm")),
    Sketcher.Constraint("DistanceY", 0, 2, -1, 1, Q("7500.004768 mm")),
])
pocket1 = body3.newObject("PartDesign::Pocket", "Pocket")
pocket1.Profile = sketch4
pocket1.Length = 810
pocket1.Reversed = True

doc.recompute()
